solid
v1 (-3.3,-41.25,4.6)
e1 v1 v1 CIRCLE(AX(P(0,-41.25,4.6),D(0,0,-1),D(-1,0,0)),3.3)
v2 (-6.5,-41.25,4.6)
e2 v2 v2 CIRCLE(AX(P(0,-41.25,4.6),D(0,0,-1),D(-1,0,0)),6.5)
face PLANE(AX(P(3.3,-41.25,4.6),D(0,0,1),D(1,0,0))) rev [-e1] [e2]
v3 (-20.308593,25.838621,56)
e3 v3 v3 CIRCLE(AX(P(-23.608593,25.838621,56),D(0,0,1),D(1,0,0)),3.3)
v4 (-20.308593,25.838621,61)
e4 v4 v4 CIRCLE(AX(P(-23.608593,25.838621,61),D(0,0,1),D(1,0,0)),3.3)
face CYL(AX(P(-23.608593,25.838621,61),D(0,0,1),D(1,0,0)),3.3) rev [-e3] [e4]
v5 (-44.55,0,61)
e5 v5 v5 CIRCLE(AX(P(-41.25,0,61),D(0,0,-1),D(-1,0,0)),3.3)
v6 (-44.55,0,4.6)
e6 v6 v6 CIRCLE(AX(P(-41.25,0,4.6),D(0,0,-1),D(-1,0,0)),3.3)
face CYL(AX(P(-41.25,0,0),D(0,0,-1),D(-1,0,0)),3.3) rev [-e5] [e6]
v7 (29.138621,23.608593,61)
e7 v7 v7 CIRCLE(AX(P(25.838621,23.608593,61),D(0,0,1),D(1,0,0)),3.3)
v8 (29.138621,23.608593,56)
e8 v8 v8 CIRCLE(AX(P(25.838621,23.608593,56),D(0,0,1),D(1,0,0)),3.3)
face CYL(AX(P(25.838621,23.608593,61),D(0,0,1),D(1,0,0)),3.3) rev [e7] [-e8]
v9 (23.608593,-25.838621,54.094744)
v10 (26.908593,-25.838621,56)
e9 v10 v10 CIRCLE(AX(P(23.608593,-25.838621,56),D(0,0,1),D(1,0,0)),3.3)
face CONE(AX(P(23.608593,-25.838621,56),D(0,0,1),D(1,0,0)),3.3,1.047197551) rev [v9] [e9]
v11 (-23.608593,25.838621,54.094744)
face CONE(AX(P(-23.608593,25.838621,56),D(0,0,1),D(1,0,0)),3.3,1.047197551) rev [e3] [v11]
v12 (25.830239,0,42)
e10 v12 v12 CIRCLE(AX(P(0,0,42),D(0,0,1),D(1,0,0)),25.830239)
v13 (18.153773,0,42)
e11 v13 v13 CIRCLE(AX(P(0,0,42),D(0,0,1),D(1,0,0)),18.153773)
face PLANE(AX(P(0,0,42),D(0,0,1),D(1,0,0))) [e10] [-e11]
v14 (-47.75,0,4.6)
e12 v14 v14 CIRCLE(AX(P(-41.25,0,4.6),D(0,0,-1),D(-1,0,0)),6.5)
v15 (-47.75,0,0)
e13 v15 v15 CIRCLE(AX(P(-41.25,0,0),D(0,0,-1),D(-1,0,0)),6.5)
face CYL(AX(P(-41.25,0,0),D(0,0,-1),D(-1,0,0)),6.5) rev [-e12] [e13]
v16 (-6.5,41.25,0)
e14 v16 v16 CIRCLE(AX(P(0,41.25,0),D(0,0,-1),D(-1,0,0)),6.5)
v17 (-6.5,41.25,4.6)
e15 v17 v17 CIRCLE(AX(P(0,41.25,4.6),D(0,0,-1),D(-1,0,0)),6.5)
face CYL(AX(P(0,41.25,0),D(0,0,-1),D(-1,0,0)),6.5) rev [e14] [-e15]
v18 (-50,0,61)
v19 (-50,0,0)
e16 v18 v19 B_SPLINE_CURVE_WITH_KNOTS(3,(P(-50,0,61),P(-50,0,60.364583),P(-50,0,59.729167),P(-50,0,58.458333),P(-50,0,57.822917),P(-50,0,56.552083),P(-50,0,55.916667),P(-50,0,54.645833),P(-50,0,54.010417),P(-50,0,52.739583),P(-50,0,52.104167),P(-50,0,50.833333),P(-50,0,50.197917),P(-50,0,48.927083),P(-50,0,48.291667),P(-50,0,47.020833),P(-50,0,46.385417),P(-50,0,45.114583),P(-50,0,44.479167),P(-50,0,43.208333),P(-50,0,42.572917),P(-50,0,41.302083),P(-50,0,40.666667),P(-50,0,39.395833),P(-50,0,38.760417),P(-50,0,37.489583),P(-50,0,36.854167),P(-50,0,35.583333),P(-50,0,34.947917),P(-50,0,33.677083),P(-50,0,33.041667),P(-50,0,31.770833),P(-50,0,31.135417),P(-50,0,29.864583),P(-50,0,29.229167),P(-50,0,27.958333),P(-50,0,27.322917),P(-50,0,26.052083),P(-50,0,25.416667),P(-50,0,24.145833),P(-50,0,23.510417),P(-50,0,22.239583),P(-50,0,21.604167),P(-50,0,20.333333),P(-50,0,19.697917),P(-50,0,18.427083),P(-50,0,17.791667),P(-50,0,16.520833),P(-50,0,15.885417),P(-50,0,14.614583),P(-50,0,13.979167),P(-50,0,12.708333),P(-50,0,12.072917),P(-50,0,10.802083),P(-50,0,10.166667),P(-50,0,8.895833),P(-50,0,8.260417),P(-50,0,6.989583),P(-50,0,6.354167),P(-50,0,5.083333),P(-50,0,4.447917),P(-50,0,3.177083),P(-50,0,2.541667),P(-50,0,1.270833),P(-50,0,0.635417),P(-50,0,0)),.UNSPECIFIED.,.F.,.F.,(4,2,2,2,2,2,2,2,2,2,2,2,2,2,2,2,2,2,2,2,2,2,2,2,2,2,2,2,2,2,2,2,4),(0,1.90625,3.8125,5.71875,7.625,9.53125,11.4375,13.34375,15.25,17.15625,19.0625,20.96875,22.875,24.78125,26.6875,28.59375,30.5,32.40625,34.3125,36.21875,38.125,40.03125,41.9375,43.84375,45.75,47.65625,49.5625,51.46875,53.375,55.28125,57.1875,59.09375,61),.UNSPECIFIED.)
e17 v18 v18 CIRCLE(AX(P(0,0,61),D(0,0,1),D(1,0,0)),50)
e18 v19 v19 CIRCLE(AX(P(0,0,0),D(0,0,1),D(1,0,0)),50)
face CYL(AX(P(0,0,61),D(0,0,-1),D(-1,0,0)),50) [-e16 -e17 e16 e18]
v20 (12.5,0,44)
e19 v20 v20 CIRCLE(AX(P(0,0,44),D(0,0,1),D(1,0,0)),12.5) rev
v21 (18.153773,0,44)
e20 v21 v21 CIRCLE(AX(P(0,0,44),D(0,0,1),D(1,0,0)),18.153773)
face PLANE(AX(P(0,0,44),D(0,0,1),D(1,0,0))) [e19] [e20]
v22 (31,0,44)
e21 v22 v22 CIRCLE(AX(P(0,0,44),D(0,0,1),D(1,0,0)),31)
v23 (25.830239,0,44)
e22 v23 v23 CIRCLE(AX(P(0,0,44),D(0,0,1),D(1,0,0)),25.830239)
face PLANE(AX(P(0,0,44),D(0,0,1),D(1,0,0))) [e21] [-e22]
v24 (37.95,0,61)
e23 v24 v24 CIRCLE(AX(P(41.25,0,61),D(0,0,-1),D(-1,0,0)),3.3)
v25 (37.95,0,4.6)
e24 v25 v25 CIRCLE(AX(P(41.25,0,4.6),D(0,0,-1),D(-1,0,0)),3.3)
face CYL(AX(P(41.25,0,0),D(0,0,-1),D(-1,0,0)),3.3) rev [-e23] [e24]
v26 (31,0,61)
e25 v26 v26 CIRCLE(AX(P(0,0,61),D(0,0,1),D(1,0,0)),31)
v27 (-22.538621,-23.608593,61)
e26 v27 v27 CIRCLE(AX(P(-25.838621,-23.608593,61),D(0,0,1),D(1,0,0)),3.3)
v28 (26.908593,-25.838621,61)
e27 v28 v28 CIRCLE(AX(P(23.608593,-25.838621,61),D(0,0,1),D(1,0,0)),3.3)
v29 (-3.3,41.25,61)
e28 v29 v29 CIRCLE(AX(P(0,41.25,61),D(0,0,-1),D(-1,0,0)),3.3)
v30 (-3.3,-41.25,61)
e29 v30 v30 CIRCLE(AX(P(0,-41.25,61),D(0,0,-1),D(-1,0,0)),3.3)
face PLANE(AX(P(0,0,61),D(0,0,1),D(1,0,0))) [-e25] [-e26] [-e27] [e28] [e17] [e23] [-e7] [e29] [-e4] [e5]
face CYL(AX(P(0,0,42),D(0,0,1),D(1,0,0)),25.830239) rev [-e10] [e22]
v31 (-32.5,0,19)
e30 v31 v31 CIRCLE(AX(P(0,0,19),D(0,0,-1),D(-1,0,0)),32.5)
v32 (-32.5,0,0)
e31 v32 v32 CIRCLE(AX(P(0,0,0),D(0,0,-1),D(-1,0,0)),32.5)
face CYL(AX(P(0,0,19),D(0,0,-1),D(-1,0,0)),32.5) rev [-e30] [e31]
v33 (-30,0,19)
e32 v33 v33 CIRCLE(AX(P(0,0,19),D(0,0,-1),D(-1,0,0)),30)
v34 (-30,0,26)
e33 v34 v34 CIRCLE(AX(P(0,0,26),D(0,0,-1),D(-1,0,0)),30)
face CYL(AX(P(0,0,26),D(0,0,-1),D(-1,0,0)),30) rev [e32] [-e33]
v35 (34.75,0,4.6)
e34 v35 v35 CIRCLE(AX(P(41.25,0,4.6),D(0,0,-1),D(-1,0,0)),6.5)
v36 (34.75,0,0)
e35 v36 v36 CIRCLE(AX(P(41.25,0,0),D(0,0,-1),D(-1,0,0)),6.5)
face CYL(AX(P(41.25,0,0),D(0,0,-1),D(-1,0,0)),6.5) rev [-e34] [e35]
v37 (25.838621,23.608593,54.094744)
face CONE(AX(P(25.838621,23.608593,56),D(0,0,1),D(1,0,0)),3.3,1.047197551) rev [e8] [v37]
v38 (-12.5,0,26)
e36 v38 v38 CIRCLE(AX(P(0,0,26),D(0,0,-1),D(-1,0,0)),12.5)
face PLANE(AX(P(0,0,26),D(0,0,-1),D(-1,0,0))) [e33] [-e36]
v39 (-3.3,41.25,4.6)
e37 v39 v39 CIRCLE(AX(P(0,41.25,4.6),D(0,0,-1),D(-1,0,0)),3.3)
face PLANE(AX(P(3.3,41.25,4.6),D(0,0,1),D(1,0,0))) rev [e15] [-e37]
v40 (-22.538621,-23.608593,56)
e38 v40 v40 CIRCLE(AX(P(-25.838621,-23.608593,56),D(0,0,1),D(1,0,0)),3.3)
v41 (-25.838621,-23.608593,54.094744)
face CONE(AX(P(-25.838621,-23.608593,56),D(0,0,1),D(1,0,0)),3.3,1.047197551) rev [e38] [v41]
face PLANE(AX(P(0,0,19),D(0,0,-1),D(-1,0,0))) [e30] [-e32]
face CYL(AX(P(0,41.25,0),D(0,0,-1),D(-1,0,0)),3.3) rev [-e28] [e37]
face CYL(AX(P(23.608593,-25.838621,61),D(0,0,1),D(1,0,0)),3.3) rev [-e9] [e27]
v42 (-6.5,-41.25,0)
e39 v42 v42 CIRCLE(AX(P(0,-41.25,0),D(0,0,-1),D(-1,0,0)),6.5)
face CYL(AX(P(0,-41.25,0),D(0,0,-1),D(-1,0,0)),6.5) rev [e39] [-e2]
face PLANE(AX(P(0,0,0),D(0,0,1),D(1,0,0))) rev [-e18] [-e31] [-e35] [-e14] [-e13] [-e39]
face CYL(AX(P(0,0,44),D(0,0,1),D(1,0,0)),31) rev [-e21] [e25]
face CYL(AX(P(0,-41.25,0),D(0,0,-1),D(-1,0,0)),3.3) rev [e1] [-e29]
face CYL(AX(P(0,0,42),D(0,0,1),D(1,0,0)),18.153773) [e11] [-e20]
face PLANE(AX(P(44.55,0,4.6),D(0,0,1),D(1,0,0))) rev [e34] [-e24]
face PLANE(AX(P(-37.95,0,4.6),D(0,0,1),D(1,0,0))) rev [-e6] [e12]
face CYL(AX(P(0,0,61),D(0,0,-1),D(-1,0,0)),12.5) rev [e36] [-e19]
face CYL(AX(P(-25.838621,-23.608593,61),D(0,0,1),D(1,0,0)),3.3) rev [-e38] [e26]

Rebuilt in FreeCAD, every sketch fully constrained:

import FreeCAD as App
import Part
import Sketcher
Q = App.Units.Quantity

doc = App.newDocument("Part")
body = doc.addObject("PartDesign::Body", "Body")

sketch1 = body.newObject("Sketcher::SketchObject", "Sketch")
sketch1.AttachmentSupport = (doc.getObject("XY_Plane"), [""])
sketch1.MapMode = "FlatFace"
sketch1.addGeometry(Part.Circle(App.Vector(0, 0, 0), App.Vector(0, 0, 1), 50), False)
sketch1.addConstraint([
    Sketcher.Constraint("Coincident", 0, 3, -1, 1),
    Sketcher.Constraint("Diameter", 0, Q("100 mm")),
])
pad1 = body.newObject("PartDesign::Pad", "Pad")
pad1.Profile = sketch1
pad1.Length = 61

sketch2 = body.newObject("Sketcher::SketchObject", "Sketch001")
sketch2.AttachmentSupport = (doc.getObject("XY_Plane"), [""])
sketch2.MapMode = "FlatFace"
sketch2.addGeometry(Part.Circle(App.Vector(0, 0, 0), App.Vector(0, 0, 1), 32), False)
sketch2.addConstraint([
    Sketcher.Constraint("Coincident", 0, 3, -1, 1),
    Sketcher.Constraint("Diameter", 0, Q("65 mm")),
])
pocket1 = body.newObject("PartDesign::Pocket", "Pocket")
pocket1.Profile = sketch2
pocket1.Length = 19
pocket1.Reversed = True

sketch3 = body.newObject("Sketcher::SketchObject", "Sketch002")
sketch3.AttachmentSupport = (doc.getObject("XY_Plane"), [""])
sketch3.MapMode = "FlatFace"
sketch3.AttachmentOffset = App.Placement(App.Vector(0, 0, 19), App.Rotation())
sketch3.addGeometry(Part.Circle(App.Vector(0, 0, 0), App.Vector(0, 0, 1), 30), False)
sketch3.addConstraint([
    Sketcher.Constraint("Coincident", 0, 3, -1, 1),
    Sketcher.Constraint("Diameter", 0, Q("60 mm")),
])
pocket2 = body.newObject("PartDesign::Pocket", "Pocket001")
pocket2.Profile = sketch3
pocket2.Length = 7
pocket2.Reversed = True

sketch4 = body.newObject("Sketcher::SketchObject", "Sketch003")
sketch4.AttachmentSupport = (doc.getObject("XY_Plane"), [""])
sketch4.MapMode = "FlatFace"
sketch4.AttachmentOffset = App.Placement(App.Vector(0, 0, 26), App.Rotation())
sketch4.addGeometry(Part.Circle(App.Vector(0, 0, 0), App.Vector(0, 0, 1), 12), False)
sketch4.addConstraint([
    Sketcher.Constraint("Coincident", 0, 3, -1, 1),
    Sketcher.Constraint("Diameter", 0, Q("25 mm")),
])
pocket3 = body.newObject("PartDesign::Pocket", "Pocket002")
pocket3.Profile = sketch4
pocket3.Type = "ThroughAll"
pocket3.Reversed = True

sketch5 = body.newObject("Sketcher::SketchObject", "Sketch004")
sketch5.AttachmentSupport = (doc.getObject("XY_Plane"), [""])
sketch5.MapMode = "FlatFace"
sketch5.addGeometry([
    Part.Circle(App.Vector(-41.2, 0, 0), App.Vector(0, 0, 1), 3.3),
    Part.Circle(App.Vector(0, 41.2, 0), App.Vector(0, 0, 1), 3.3),
    Part.Circle(App.Vector(41.2, 0, 0), App.Vector(0, 0, 1), 3.3),
    Part.Circle(App.Vector(0, -41.2, 0), App.Vector(0, 0, 1), 3.3),
], False)
sketch5.addConstraint([
    Sketcher.Constraint("Equal", 0, 1),
    Sketcher.Constraint("Equal", 1, 2),
    Sketcher.Constraint("Equal", 2, 3),
    Sketcher.Constraint("Symmetric", 0, 3, 2, 3, -1, 1),
    Sketcher.Constraint("Symmetric", 1, 3, 3, 3, -1, 1),
    Sketcher.Constraint("PointOnObject", 0, 3, -1),
    Sketcher.Constraint("PointOnObject", 1, 3, -2),
    Sketcher.Constraint("Diameter", 0, Q("6.6 mm")),
    Sketcher.Constraint("DistanceX", 0, 3, 2, 3, Q("82.5 mm")),
    Sketcher.Constraint("DistanceY", 3, 3, 1, 3, Q("82.5 mm")),
])
doc.recompute()
hole = body.newObject("PartDesign::Hole", "Hole")
hole.Profile = sketch5
hole.ThreadType = "None"
hole.Diameter = 6.6
hole.DepthType = "ThroughAll"
hole.HoleCutType = "Counterbore"
hole.HoleCutDiameter = 13
hole.HoleCutDepth = 4.6
hole.Reversed = True

sketch6 = body.newObject("Sketcher::SketchObject", "Sketch005")
sketch6.AttachmentSupport = (doc.getObject("XY_Plane"), [""])
sketch6.MapMode = "FlatFace"
sketch6.AttachmentOffset = App.Placement(App.Vector(0, 0, 61), App.Rotation())
sketch6.addGeometry(Part.Circle(App.Vector(0, 0, 0), App.Vector(0, 0, 1), 31), False)
sketch6.addConstraint([
    Sketcher.Constraint("Coincident", 0, 3, -1, 1),
    Sketcher.Constraint("Diameter", 0, Q("62 mm")),
])
pocket4 = body.newObject("PartDesign::Pocket", "Pocket003")
pocket4.Profile = sketch6
pocket4.Length = 17

sketch7 = body.newObject("Sketcher::SketchObject", "Sketch006")
sketch7.AttachmentSupport = (doc.getObject("XY_Plane"), [""])
sketch7.MapMode = "FlatFace"
sketch7.AttachmentOffset = App.Placement(App.Vector(0, 0, 44), App.Rotation())
sketch7.addGeometry([
    Part.Circle(App.Vector(0, 0, 0), App.Vector(0, 0, 1), 26),
    Part.Circle(App.Vector(0, 0, 0), App.Vector(0, 0, 1), 18),
], False)
sketch7.addConstraint([
    Sketcher.Constraint("Coincident", 0, 3, -1, 1),
    Sketcher.Constraint("Coincident", 1, 3, -1, 1),
    Sketcher.Constraint("Diameter", 0, Q("51.660479 mm")),
    Sketcher.Constraint("Diameter", 1, Q("36.307547 mm")),
])
pocket5 = body.newObject("PartDesign::Pocket", "Pocket004")
pocket5.Profile = sketch7
pocket5.Length = 2

sketch8 = body.newObject("Sketcher::SketchObject", "Sketch007")
sketch8.AttachmentSupport = (doc.getObject("XY_Plane"), [""])
sketch8.MapMode = "FlatFace"
sketch8.AttachmentOffset = App.Placement(App.Vector(0, 0, 61), App.Rotation())
sketch8.addGeometry([
    Part.Circle(App.Vector(-23.6, 25.8, 0), App.Vector(0, 0, 1), 3.3),
    Part.Circle(App.Vector(-25.8, -23.6, 0), App.Vector(0, 0, 1), 3.3),
    Part.Circle(App.Vector(23.6, -25.8, 0), App.Vector(0, 0, 1), 3.3),
    Part.Circle(App.Vector(25.8, 23.6, 0), App.Vector(0, 0, 1), 3.3),
], False)
sketch8.addConstraint([
    Sketcher.Constraint("Equal", 0, 1),
    Sketcher.Constraint("Equal", 1, 2),
    Sketcher.Constraint("Equal", 2, 3),
    Sketcher.Constraint("Symmetric", 0, 3, 2, 3, -1, 1),
    Sketcher.Constraint("Symmetric", 1, 3, 3, 3, -1, 1),
    Sketcher.Constraint("Diameter", 0, Q("6.6 mm")),
    Sketcher.Constraint("DistanceY", -1, 1, 0, 3, Q("25.838621 mm")),
    Sketcher.Constraint("DistanceX", 1, 3, -1, 1, Q("25.838621 mm")),
    Sketcher.Constraint("DistanceX", 1, 3, 0, 3, Q("2.230028 mm")),
    Sketcher.Constraint("DistanceY", 2, 3, 1, 3, Q("2.230028 mm")),
])
doc.recompute()
hole2 = body.newObject("PartDesign::Hole", "Hole001")
hole2.Profile = sketch8
hole2.ThreadType = "None"
hole2.Diameter = 6.6
hole2.DepthType = "Dimension"
hole2.Depth = 5
hole2.DrillPoint = "Angled"
hole2.DrillPointAngle = 120

doc.recompute()
